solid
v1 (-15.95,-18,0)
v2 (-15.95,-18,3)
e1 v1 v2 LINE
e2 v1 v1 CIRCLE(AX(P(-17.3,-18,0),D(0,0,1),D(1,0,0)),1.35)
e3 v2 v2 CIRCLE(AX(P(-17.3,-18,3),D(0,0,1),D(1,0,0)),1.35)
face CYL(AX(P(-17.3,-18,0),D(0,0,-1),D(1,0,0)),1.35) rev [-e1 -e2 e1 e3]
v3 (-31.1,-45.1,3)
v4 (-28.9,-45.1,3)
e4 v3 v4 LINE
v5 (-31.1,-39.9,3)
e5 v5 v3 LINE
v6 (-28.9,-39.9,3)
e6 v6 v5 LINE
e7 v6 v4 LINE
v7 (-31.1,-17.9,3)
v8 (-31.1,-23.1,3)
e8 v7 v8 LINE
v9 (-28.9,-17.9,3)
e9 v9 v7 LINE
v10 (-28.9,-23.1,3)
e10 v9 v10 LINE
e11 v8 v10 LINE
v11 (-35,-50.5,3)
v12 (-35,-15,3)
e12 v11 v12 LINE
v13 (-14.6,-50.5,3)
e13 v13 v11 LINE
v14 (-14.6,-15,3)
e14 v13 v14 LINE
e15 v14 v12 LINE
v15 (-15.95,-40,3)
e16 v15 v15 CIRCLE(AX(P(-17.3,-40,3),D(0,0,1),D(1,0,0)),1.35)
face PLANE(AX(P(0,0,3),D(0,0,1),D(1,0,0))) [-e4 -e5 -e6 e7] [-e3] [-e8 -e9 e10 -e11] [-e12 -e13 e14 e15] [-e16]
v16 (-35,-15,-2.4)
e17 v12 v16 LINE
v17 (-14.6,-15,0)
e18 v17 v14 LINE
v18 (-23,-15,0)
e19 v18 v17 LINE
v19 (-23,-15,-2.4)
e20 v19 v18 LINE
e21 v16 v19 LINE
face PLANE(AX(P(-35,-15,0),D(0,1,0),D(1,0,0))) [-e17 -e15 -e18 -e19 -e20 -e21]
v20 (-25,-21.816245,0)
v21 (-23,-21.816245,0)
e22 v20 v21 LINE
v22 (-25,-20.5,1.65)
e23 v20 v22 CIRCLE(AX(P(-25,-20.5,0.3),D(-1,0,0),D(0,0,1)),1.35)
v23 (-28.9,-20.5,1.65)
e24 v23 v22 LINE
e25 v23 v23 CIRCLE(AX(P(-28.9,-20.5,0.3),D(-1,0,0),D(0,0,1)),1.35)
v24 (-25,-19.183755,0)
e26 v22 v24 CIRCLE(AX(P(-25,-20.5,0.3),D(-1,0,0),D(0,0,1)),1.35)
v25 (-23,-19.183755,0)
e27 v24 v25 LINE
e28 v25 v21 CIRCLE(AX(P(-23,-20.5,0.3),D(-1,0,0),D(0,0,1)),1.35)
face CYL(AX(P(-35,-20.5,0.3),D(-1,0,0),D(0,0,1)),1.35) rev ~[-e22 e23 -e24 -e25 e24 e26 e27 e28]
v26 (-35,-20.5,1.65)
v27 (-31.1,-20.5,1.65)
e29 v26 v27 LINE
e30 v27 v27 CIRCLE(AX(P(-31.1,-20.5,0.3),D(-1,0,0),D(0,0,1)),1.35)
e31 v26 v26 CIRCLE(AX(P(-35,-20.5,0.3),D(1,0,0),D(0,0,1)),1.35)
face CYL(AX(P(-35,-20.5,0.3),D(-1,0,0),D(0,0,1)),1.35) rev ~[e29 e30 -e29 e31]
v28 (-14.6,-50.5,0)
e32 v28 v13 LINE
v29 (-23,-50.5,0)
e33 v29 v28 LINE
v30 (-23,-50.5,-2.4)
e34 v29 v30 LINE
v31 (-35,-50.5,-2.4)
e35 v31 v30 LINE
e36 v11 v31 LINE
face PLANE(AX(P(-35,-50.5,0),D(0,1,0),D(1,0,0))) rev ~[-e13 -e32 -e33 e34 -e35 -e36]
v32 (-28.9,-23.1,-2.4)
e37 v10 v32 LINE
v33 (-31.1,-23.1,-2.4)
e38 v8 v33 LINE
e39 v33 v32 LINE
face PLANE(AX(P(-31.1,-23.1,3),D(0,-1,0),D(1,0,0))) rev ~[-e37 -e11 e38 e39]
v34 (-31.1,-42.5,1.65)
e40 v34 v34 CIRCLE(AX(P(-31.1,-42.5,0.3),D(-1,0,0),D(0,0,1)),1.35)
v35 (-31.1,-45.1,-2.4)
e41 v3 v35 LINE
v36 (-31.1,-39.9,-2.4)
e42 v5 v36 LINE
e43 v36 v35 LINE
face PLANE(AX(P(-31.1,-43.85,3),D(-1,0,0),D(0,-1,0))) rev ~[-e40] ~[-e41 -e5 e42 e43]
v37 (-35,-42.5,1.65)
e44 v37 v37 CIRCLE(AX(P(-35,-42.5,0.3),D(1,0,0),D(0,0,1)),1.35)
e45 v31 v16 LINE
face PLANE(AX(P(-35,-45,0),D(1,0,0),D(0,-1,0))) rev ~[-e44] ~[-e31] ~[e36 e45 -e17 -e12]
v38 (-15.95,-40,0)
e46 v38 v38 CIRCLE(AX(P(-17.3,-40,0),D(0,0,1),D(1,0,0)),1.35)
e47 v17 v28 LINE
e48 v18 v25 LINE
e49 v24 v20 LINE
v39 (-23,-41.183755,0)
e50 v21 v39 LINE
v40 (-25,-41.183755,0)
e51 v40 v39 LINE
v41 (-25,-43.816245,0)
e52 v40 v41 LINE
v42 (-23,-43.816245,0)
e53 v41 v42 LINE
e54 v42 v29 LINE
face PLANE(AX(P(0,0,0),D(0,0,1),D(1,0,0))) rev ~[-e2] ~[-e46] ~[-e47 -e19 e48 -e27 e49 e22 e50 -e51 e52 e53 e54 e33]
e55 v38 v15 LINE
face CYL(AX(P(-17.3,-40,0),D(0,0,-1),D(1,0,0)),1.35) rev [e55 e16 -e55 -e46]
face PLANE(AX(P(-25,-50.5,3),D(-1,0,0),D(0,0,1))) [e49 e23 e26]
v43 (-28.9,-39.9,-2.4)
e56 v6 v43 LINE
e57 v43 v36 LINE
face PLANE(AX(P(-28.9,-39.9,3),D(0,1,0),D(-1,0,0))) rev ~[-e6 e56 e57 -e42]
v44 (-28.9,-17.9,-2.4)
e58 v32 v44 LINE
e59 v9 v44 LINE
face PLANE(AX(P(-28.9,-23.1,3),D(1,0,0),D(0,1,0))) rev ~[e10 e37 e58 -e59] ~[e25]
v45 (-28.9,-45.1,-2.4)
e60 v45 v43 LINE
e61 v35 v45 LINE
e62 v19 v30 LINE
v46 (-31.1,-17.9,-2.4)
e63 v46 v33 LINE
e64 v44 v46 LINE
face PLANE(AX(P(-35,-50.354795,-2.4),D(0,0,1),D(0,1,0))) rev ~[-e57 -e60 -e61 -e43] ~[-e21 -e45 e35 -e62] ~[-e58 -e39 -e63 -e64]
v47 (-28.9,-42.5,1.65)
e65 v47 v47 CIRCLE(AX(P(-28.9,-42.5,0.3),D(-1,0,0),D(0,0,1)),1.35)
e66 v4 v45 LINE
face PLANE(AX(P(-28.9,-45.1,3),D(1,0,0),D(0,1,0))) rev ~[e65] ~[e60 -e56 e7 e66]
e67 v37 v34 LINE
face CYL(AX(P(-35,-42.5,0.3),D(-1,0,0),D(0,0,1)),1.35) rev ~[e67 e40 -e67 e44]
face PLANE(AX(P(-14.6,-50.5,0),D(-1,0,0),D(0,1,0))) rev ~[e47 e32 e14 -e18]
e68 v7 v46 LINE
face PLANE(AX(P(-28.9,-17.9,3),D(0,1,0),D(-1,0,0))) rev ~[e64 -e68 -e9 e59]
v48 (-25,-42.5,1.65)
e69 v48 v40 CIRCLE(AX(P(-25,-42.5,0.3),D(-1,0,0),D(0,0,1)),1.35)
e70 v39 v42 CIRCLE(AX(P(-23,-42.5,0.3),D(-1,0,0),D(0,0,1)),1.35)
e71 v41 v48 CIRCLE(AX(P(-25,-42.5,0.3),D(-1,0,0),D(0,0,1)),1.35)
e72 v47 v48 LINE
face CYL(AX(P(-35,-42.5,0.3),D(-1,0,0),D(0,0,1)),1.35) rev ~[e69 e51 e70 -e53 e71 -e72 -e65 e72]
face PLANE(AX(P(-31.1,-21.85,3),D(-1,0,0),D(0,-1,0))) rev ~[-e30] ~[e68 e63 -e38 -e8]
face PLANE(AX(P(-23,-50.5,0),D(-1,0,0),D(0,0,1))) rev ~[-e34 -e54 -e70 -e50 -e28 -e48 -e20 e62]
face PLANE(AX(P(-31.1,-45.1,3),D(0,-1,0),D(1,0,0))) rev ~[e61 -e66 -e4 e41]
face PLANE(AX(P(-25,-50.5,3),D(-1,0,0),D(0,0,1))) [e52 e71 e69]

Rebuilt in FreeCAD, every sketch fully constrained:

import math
import FreeCAD as App
import Part
import Sketcher
from FreeCAD import Vector


def add_polygon(sketch, points):
    """Adds a closed chain of lines whose ends are joined by coincident constraints."""
    first, n = sketch.GeometryCount, len(points)
    for a, b in zip(points, points[1:] + points[:1]):
        sketch.addGeometry(Part.LineSegment(App.Vector(*a, 0), App.Vector(*b, 0)), False)
    for i in range(n):
        sketch.addConstraint(Sketcher.Constraint("Coincident", first + i, 2, first + (i + 1) % n, 1))

doc = App.newDocument("Part")
body = doc.addObject("PartDesign::Body", "Body")

sketch1 = body.newObject("Sketcher::SketchObject", "Sketch")
sketch1.AttachmentSupport = (doc.getObject("XY_Plane"), [""])
sketch1.MapMode = "FlatFace"
add_polygon(sketch1, [(-35, -50.5), (-14.6, -50.5), (-14.6, -15), (-35, -15)])
sketch1.addGeometry(Part.Circle(Vector(-17.3, -40, 0), Vector(0, 0, 1), 1.4), False)
sketch1.addGeometry(Part.Circle(Vector(-17.3, -18, 0), Vector(0, 0, 1), 1.4), False)
sketch1.addConstraint([
    Sketcher.Constraint("Horizontal", 0),
    Sketcher.Constraint("Vertical", 1),
    Sketcher.Constraint("Horizontal", 2),
    Sketcher.Constraint("Vertical", 3),
    Sketcher.Constraint("Equal", 4, 5),
    Sketcher.Constraint("Vertical", 4, 3, 5, 3),
    Sketcher.Constraint("DistanceX", 0, 1, 0, 2, 20.4),
    Sketcher.Constraint("Diameter", 4, 2.7),
    Sketcher.Constraint("DistanceY", 1, 1, 1, 2, 35.5),
    Sketcher.Constraint("DistanceY", 4, 3, -1, 1, 40.0),
    Sketcher.Constraint("DistanceY", 5, 3, -1, 1, 18.0),
    Sketcher.Constraint("DistanceY", 1, 2, -1, 1, 15.0),
    Sketcher.Constraint("DistanceX", 2, 2, -1, 1, 35.0),
    Sketcher.Constraint("DistanceX", 4, 3, -1, 1, 17.3),
])
pad1 = body.newObject("PartDesign::Pad", "Pad")
pad1.Profile = sketch1
pad1.Length = 3

sketch2 = body.newObject("Sketcher::SketchObject", "Sketch001")
sketch2.AttachmentSupport = (doc.getObject("YZ_Plane"), [""])
sketch2.MapMode = "FlatFace"
sketch2.AttachmentOffset = App.Placement(Vector(0, 0, -35), App.Rotation())
sketch2.addGeometry([
    Part.LineSegment(Vector(-50.5, -2.4, 0), Vector(-50.5, 0, 0)),
    Part.LineSegment(Vector(-50.5, 0, 0), Vector(-43.8, 0, 0)),
    Part.ArcOfCircle(Part.Circle(Vector(-42.5, 0.3, 0), Vector(0, 0, 1), 1.4), math.radians(-167), math.radians(-13)),
    Part.LineSegment(Vector(-41.2, 0, 0), Vector(-21.8, 0, 0)),
    Part.ArcOfCircle(Part.Circle(Vector(-20.5, 0.3, 0), Vector(0, 0, 1), 1.4), math.radians(-167), math.radians(-13)),
    Part.LineSegment(Vector(-19.2, 0, 0), Vector(-15, 0, 0)),
    Part.LineSegment(Vector(-15, 0, 0), Vector(-15, -2.4, 0)),
    Part.LineSegment(Vector(-15, -2.4, 0), Vector(-50.5, -2.4, 0)),
], False)
sketch2.addConstraint([
    Sketcher.Constraint("Coincident", 0, 2, 1, 1),
    Sketcher.Constraint("Coincident", 1, 2, 2, 1),
    Sketcher.Constraint("Coincident", 2, 2, 3, 1),
    Sketcher.Constraint("Coincident", 3, 2, 4, 1),
    Sketcher.Constraint("Coincident", 4, 2, 5, 1),
    Sketcher.Constraint("Coincident", 5, 2, 6, 1),
    Sketcher.Constraint("Coincident", 6, 2, 7, 1),
    Sketcher.Constraint("Coincident", 7, 2, 0, 1),
    Sketcher.Constraint("Vertical", 0),
    Sketcher.Constraint("Horizontal", 1),
    Sketcher.Constraint("Horizontal", 3),
    Sketcher.Constraint("Horizontal", 5),
    Sketcher.Constraint("Vertical", 6),
    Sketcher.Constraint("Horizontal", 7),
    Sketcher.Constraint("Equal", 2, 4),
    Sketcher.Constraint("PointOnObject", 0, 2, -1),
    Sketcher.Constraint("PointOnObject", 2, 2, -1),
    Sketcher.Constraint("PointOnObject", 4, 2, -1),
    Sketcher.Constraint("Horizontal", 2, 3, 4, 3),
    Sketcher.Constraint("Radius", 2, 1.35),
    Sketcher.Constraint("DistanceX", 7, 2, 7, 1, 35.5),
    Sketcher.Constraint("DistanceY", 0, 1, 0, 2, 2.4),
    Sketcher.Constraint("DistanceX", 5, 2, -1, 1, 15.0),
    Sketcher.Constraint("DistanceX", 2, 3, 4, 3, 22.0),
    Sketcher.Constraint("DistanceX", 0, 2, 2, 3, 8.0),
    Sketcher.Constraint("DistanceY", -1, 1, 2, 3, 0.3),
])
pad2 = body.newObject("PartDesign::Pad", "Pad001")
pad2.Profile = sketch2
pad2.Length = 12

sketch3 = body.newObject("Sketcher::SketchObject", "Sketch002")
sketch3.AttachmentSupport = (doc.getObject("YZ_Plane"), [""])
sketch3.MapMode = "FlatFace"
sketch3.AttachmentOffset = App.Placement(Vector(0, 0, -35), App.Rotation())
sketch3.addGeometry([
    Part.Circle(Vector(-20.5, 0.3, 0), Vector(0, 0, 1), 1.4),
    Part.Circle(Vector(-42.5, 0.3, 0), Vector(0, 0, 1), 1.4),
], False)
sketch3.addConstraint([
    Sketcher.Constraint("Equal", 0, 1),
    Sketcher.Constraint("Horizontal", 0, 3, 1, 3),
    Sketcher.Constraint("Diameter", 0, 2.7),
    Sketcher.Constraint("DistanceX", 1, 3, 0, 3, 22.0),
    Sketcher.Constraint("DistanceX", 0, 3, -1, 1, 20.5),
    Sketcher.Constraint("DistanceY", -1, 1, 0, 3, 0.3),
])
pocket1 = body.newObject("PartDesign::Pocket", "Pocket")
pocket1.Profile = sketch3
pocket1.Length = 10
pocket1.Reversed = True

sketch4 = body.newObject("Sketcher::SketchObject", "Sketch003")
sketch4.AttachmentSupport = (doc.getObject("XY_Plane"), [""])
sketch4.MapMode = "FlatFace"
sketch4.AttachmentOffset = App.Placement(Vector(0, 0, 3), App.Rotation())
add_polygon(sketch4, [(-28.9, -45.1), (-28.9, -39.9), (-31.1, -39.9), (-31.1, -45.1)])
add_polygon(sketch4, [(-28.9, -23.1), (-28.9, -17.9), (-31.1, -17.9), (-31.1, -23.1)])
sketch4.addConstraint([
    Sketcher.Constraint("Vertical", 0),
    Sketcher.Constraint("Horizontal", 1),
    Sketcher.Constraint("Vertical", 2),
    Sketcher.Constraint("Horizontal", 3),
    Sketcher.Constraint("Vertical", 4),
    Sketcher.Constraint("Horizontal", 5),
    Sketcher.Constraint("Vertical", 6),
    Sketcher.Constraint("Horizontal", 7),
    Sketcher.Constraint("Vertical", 3, 2, 4, 2),
    Sketcher.Constraint("Vertical", 2, 2, 5, 2),
    Sketcher.Constraint("Equal", 2, 4),
    Sketcher.Constraint("DistanceX", 1, 2, 1, 1, 2.2),
    Sketcher.Constraint("DistanceY", 0, 1, 0, 2, 5.2),
    Sketcher.Constraint("DistanceY", 0, 2, 4, 2, 22.0),
    Sketcher.Constraint("DistanceX", 0, 2, -1, 1, 28.9),
    Sketcher.Constraint("DistanceY", 0, 2, -1, 1, 39.9),
])
pocket2 = body.newObject("PartDesign::Pocket", "Pocket001")
pocket2.Profile = sketch4
pocket2.Length = 10

doc.recompute()
